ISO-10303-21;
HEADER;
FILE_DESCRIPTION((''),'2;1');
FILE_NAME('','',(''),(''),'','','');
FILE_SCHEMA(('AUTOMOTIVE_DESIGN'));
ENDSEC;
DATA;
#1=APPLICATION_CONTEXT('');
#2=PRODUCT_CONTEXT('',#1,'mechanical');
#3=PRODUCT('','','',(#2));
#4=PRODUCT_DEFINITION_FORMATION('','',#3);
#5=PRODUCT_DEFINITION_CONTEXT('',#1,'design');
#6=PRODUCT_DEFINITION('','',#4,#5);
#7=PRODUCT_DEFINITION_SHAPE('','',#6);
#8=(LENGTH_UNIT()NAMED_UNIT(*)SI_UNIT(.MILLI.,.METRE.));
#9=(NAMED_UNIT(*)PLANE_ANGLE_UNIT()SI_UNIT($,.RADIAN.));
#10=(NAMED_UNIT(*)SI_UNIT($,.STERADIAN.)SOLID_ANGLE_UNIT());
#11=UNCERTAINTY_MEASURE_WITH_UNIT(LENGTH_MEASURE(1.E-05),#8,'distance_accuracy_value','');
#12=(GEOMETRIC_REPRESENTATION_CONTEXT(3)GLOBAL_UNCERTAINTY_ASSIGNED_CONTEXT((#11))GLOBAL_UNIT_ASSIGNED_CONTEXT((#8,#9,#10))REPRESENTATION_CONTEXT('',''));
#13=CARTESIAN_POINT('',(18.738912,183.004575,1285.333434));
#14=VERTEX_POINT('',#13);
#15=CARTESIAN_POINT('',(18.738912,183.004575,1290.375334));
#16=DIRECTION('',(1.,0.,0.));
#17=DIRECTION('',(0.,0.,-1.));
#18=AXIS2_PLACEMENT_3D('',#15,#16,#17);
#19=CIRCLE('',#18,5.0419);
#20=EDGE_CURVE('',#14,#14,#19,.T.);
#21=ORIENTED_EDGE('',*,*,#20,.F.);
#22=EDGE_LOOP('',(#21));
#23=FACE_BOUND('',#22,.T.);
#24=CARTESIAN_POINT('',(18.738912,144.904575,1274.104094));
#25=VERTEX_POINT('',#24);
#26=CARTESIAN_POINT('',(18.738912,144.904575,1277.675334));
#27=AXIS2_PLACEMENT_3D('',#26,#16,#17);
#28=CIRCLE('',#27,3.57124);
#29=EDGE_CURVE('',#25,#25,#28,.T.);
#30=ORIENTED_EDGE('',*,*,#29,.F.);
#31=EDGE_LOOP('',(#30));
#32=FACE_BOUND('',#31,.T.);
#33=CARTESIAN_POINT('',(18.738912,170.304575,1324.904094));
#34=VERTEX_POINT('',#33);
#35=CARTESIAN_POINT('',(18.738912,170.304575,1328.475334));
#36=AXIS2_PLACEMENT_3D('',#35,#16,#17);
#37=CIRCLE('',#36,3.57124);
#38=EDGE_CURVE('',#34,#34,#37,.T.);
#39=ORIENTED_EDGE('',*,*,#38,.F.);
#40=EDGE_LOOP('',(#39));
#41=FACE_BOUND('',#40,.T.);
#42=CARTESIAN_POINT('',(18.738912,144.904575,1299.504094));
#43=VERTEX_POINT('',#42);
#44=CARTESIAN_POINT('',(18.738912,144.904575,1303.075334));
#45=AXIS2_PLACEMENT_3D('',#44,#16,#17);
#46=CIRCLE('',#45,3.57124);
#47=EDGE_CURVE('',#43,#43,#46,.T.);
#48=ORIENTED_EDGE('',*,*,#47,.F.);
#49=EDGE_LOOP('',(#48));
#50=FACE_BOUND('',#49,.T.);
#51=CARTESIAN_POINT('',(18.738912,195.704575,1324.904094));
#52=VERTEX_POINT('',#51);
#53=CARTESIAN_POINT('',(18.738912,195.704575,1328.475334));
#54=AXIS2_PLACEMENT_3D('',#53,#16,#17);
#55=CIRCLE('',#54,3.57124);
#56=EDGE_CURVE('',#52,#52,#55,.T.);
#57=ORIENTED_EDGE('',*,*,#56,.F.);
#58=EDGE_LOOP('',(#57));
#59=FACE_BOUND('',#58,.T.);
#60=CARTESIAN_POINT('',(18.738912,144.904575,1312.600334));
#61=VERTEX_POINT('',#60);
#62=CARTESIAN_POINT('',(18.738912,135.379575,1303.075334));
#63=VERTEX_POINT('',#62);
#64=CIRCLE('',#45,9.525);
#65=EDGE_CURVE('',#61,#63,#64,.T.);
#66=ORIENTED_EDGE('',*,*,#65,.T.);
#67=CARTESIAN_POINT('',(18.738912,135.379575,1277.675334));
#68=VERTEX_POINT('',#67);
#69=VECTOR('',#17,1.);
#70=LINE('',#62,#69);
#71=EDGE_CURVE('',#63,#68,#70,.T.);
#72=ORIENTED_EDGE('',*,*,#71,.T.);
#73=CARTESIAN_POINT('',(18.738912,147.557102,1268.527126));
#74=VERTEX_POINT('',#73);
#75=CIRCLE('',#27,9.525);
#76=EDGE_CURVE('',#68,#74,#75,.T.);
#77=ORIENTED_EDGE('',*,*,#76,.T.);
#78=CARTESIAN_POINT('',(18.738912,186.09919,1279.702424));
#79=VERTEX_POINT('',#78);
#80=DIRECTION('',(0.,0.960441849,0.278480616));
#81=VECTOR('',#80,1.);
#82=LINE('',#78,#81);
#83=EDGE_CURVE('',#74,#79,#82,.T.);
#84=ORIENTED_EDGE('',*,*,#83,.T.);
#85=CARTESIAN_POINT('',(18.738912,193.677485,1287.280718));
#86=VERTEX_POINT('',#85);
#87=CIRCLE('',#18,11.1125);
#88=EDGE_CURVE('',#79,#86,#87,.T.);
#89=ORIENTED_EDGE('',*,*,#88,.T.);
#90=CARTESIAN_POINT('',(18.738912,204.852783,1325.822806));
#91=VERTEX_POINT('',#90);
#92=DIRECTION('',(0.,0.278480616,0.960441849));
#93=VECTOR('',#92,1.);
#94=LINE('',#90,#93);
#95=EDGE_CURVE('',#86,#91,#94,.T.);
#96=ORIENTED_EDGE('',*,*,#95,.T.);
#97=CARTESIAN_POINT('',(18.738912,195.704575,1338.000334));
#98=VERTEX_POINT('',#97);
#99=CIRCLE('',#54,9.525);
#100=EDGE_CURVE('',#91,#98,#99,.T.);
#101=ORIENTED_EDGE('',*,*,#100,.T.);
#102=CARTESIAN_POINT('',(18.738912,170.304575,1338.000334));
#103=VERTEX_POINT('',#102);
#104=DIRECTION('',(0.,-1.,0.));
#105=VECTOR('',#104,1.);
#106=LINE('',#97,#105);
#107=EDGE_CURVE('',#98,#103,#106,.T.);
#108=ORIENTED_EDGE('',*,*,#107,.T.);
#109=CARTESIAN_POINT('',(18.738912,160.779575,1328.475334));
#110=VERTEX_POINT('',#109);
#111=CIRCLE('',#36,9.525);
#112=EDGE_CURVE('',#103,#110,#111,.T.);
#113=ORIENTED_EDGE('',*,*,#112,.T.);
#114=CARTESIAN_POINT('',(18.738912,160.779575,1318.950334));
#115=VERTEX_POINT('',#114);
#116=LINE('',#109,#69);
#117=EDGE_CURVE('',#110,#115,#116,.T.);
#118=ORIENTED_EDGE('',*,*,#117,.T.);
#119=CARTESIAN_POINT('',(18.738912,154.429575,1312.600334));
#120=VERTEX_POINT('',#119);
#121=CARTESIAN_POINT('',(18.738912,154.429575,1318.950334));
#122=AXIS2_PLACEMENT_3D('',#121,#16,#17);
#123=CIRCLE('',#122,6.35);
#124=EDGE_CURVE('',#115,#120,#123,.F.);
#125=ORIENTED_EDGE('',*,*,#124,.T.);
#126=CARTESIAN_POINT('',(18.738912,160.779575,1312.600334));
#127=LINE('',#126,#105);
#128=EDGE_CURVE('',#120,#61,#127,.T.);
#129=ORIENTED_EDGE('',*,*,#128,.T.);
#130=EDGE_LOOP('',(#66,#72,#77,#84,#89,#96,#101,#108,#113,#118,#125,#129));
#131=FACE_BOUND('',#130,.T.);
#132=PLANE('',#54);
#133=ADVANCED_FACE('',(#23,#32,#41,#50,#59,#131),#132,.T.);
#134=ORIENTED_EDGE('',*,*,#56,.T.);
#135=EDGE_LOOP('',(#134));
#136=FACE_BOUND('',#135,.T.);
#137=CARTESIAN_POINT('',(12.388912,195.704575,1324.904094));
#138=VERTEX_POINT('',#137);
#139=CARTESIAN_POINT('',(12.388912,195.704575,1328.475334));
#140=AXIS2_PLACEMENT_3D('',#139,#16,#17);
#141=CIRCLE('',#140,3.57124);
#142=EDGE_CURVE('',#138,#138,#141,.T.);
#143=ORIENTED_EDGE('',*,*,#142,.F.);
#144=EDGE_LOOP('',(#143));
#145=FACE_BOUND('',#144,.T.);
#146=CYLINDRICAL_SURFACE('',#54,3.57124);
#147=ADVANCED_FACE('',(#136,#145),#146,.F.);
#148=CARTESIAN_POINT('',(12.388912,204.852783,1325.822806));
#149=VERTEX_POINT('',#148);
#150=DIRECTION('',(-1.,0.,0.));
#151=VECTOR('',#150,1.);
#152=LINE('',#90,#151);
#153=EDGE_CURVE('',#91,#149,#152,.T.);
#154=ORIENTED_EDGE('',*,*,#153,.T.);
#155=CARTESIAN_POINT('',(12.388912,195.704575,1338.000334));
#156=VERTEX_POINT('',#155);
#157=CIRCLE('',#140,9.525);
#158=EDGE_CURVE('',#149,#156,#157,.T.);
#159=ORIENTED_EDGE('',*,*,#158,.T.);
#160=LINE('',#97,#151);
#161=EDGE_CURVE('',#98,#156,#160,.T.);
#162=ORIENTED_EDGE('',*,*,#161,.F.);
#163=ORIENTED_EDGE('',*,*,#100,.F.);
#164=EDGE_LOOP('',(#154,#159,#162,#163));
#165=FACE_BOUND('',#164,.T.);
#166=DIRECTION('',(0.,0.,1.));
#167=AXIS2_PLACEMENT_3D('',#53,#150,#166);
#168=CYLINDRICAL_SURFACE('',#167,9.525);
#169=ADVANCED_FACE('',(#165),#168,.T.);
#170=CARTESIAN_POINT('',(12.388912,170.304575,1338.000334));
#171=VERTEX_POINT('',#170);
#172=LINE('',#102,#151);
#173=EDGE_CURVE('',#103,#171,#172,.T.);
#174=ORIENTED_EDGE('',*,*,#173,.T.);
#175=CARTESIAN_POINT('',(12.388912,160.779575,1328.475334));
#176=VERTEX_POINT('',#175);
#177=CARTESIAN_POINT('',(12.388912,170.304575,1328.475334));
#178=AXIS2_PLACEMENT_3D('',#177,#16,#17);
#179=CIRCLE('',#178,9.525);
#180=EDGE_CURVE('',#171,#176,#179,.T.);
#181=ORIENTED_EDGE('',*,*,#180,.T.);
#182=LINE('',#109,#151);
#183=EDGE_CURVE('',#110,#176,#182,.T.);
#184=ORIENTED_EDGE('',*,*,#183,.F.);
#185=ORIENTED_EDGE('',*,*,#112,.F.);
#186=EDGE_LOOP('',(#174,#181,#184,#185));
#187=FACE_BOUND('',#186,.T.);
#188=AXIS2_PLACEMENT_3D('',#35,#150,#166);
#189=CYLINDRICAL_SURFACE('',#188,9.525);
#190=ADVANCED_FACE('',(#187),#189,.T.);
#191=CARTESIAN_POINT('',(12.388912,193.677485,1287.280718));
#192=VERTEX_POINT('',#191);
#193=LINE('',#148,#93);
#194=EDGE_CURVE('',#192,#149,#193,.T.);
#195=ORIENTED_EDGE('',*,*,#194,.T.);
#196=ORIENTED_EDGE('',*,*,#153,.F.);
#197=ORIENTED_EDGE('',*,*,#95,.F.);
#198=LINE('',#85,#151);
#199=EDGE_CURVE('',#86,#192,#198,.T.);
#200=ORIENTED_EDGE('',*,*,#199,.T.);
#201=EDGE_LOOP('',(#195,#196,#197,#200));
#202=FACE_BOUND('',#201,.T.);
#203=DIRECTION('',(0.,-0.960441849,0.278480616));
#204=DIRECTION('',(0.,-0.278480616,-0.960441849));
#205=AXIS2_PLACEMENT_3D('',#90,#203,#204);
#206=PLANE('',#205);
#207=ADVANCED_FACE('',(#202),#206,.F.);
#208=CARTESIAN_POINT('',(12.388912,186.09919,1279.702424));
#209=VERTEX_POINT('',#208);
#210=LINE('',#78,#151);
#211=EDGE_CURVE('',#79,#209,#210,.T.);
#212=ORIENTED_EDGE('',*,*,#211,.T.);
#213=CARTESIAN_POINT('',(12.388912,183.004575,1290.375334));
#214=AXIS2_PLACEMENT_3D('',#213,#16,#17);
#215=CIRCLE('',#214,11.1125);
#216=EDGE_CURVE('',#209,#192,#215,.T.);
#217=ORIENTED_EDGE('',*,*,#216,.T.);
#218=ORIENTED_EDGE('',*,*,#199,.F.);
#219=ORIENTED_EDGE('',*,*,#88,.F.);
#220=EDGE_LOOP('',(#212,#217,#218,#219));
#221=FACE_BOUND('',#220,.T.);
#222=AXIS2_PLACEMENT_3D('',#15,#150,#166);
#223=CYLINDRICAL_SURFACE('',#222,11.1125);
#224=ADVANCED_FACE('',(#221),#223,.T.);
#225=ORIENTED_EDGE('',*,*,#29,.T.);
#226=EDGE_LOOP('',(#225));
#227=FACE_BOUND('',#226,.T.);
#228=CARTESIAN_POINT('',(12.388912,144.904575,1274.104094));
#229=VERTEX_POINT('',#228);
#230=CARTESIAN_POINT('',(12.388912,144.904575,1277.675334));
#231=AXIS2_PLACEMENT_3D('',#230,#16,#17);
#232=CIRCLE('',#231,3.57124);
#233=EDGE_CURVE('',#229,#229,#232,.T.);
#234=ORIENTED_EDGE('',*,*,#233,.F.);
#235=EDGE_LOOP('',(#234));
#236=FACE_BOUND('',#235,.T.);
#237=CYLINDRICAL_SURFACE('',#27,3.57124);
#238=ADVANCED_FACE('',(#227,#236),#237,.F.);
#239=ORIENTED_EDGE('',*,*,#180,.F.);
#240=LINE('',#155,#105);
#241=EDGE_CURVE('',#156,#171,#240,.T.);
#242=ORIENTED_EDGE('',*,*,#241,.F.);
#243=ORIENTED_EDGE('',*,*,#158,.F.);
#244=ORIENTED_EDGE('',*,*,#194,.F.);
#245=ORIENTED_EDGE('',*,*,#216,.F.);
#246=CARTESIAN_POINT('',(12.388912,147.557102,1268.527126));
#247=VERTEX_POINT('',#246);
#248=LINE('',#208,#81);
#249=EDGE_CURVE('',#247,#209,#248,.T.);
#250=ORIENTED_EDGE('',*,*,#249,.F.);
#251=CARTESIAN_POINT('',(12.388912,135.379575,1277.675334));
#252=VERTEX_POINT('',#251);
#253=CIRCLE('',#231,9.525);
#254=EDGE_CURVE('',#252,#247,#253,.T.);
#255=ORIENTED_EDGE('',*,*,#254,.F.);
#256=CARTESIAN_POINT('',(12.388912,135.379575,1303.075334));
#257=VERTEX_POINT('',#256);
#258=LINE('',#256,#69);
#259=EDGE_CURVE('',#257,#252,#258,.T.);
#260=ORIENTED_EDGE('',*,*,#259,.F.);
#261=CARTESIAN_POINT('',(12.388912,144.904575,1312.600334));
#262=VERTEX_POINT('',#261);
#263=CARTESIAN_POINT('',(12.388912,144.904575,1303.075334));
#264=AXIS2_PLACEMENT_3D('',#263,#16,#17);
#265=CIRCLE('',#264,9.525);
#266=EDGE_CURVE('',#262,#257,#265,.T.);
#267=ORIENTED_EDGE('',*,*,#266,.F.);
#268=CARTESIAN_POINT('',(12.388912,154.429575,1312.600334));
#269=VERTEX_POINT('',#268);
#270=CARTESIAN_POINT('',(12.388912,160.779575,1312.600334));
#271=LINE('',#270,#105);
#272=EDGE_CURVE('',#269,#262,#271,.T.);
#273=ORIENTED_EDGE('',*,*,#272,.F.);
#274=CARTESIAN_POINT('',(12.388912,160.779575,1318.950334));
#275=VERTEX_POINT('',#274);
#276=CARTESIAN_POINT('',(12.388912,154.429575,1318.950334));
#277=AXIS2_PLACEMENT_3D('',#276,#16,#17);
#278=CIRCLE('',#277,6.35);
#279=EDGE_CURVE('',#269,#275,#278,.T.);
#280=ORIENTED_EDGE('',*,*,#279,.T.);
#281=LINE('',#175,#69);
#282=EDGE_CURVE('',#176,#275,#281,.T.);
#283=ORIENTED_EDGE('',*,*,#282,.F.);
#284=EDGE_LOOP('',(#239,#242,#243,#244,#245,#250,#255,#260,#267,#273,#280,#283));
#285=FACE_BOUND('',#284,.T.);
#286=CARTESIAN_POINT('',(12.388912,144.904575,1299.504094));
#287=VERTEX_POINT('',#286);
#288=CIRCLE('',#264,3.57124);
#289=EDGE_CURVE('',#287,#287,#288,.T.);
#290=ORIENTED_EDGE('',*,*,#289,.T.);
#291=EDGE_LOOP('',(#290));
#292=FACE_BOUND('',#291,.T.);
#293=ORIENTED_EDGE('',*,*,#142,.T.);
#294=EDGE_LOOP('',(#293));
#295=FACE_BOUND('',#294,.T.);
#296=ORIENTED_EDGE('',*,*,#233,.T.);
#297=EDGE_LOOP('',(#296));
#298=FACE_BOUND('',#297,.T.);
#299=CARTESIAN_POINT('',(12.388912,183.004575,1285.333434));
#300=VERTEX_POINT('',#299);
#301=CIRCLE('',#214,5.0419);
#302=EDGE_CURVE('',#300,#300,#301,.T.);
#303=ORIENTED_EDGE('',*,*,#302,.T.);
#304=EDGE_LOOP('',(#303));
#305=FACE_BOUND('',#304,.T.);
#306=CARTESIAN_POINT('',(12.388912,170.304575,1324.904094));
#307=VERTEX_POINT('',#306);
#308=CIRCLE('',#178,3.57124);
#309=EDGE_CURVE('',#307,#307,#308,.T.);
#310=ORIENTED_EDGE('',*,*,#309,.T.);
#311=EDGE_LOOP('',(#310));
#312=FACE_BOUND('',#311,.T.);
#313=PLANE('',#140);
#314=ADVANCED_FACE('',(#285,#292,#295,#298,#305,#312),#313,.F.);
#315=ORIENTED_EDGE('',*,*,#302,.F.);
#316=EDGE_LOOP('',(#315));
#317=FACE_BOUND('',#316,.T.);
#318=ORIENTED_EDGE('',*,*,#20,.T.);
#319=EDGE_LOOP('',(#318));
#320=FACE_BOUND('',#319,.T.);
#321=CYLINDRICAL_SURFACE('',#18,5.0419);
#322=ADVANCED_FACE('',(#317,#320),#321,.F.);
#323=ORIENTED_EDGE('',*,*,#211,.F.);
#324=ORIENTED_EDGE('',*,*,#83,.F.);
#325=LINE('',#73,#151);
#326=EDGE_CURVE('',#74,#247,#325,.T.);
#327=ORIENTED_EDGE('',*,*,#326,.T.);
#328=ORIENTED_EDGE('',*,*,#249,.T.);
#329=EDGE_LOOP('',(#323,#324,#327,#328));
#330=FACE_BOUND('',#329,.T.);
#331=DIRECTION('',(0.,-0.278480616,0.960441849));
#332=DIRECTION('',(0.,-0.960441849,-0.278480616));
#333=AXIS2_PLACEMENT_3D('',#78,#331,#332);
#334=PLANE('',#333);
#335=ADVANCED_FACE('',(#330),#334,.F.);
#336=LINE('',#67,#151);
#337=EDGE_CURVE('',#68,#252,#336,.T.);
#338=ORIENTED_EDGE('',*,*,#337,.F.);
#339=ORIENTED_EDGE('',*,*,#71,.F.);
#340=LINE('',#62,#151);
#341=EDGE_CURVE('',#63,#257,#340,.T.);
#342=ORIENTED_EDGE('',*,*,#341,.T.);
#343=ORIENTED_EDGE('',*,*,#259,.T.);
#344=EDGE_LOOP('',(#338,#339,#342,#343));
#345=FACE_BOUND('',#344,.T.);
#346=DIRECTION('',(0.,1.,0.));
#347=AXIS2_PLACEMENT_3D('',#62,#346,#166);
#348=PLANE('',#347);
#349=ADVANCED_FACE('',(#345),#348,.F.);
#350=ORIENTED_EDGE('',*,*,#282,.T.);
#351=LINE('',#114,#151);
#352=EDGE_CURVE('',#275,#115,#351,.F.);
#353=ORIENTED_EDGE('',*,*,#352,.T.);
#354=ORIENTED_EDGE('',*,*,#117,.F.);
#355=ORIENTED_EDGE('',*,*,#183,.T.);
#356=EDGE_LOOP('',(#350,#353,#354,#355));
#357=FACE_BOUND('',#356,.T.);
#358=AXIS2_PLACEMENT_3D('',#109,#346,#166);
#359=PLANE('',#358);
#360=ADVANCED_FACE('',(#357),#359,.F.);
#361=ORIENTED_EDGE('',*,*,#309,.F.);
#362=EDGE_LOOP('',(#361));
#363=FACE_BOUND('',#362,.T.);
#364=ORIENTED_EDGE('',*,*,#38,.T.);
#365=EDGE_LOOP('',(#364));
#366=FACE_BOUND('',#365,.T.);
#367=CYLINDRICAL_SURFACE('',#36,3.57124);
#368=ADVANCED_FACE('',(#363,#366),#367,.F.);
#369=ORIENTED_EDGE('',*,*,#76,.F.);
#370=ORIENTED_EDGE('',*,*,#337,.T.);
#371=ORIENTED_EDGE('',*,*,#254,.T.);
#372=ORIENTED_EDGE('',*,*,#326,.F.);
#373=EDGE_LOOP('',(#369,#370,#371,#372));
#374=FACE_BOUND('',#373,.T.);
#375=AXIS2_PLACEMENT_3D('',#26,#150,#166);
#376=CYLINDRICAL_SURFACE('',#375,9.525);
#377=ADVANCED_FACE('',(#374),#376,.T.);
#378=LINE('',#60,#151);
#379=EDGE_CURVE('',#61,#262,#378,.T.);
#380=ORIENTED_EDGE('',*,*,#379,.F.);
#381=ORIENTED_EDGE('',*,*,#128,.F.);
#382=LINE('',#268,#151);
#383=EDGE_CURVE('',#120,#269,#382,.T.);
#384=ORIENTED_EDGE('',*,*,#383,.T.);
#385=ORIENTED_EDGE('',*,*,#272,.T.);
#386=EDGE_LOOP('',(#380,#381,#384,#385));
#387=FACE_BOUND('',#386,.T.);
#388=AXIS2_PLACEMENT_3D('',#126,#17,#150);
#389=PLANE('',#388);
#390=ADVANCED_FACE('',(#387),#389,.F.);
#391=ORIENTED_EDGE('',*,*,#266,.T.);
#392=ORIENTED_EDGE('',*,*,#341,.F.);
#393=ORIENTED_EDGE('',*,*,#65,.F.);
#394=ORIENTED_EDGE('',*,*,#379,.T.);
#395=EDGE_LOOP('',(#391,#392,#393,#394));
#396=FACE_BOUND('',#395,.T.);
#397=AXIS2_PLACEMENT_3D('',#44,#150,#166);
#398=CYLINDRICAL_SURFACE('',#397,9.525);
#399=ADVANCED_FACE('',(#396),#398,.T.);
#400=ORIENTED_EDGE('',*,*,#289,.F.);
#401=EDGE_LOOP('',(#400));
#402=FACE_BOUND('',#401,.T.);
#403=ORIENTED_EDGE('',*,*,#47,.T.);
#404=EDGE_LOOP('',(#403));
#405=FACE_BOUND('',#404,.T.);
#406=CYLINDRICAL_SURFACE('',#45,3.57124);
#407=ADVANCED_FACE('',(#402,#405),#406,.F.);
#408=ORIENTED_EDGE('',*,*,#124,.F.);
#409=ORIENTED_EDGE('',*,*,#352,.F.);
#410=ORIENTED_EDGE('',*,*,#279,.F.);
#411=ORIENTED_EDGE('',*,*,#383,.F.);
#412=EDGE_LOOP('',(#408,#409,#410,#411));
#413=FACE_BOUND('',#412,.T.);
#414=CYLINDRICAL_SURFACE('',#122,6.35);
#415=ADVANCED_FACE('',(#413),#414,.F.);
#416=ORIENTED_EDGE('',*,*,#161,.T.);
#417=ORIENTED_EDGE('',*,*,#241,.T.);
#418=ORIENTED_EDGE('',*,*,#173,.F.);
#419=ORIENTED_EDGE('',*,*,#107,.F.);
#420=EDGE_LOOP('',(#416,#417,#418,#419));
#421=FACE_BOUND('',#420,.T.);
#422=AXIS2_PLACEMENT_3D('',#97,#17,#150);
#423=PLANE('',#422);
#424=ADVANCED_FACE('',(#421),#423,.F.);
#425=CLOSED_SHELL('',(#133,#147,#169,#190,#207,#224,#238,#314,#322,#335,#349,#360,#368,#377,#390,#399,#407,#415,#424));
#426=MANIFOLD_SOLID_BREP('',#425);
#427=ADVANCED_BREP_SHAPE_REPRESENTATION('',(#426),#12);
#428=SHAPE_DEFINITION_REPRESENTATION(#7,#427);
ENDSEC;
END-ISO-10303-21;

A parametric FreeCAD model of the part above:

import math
import FreeCAD as App
import Part
import Sketcher
from FreeCAD import Vector
Q = App.Units.Quantity


def edges_at(feature, points):
    """Names of the edges that pass closest to the given points."""
    edges = feature.Shape.Edges
    near = lambda p: min(range(len(edges)), key=lambda i: edges[i].distToShape(Part.Vertex(*p))[0])
    return sorted({f"Edge{near(p) + 1}" for p in points})

doc = App.newDocument("Part")
body = doc.addObject("PartDesign::Body", "Body")

# Sketch on YZ plane
sketch1 = body.newObject("Sketcher::SketchObject", "Sketch")
sketch1.AttachmentSupport = (doc.getObject("YZ_Plane"), [""])
sketch1.MapMode = "FlatFace"
sketch1.AttachmentOffset = App.Placement(Vector(0, 0, 12.388912), App.Rotation())
sketch1.addGeometry([
    Part.LineSegment(Vector(195.704575, 1338.000334, 0), Vector(170.304575, 1338.000334, 0)),  # 0
    Part.ArcOfCircle(Part.Circle(Vector(170.304575, 1328.475334, 0), Vector(0, 0, 1), 9.525), math.radians(90), math.radians(180)),  # 1
    Part.LineSegment(Vector(160.779575, 1328.475334, 0), Vector(160.779575, 1312.600334, 0)),  # 2
    Part.LineSegment(Vector(160.779575, 1312.600334, 0), Vector(144.904575, 1312.600334, 0)),  # 3
    Part.ArcOfCircle(Part.Circle(Vector(144.904575, 1303.075334, 0), Vector(0, 0, 1), 9.525), math.radians(90), math.radians(180)),  # 4
    Part.LineSegment(Vector(135.379575, 1303.075334, 0), Vector(135.379575, 1277.675334, 0)),  # 5
    Part.ArcOfCircle(Part.Circle(Vector(144.904575, 1277.675334, 0), Vector(0, 0, 1), 9.525), math.radians(-180), math.radians(-73.830456)),  # 6
    Part.LineSegment(Vector(147.557102, 1268.527126, 0), Vector(186.09919, 1279.702424, 0)),  # 7
    Part.ArcOfCircle(Part.Circle(Vector(183.004575, 1290.375334, 0), Vector(0, 0, 1), 11.1125), math.radians(-73.830456), math.radians(-16.169544)),  # 8
    Part.LineSegment(Vector(193.677485, 1287.280718, 0), Vector(204.852783, 1325.822806, 0)),  # 9
    Part.ArcOfCircle(Part.Circle(Vector(195.704575, 1328.475334, 0), Vector(0, 0, 1), 9.525), math.radians(-16.169544), math.radians(90)),  # 10
], False)
sketch1.addConstraint([
    Sketcher.Constraint("Tangent", 0, 2, 1, 1),
    Sketcher.Constraint("Tangent", 1, 2, 2, 1),
    Sketcher.Constraint("Coincident", 2, 2, 3, 1),
    Sketcher.Constraint("Tangent", 3, 2, 4, 1),
    Sketcher.Constraint("Tangent", 4, 2, 5, 1),
    Sketcher.Constraint("Tangent", 5, 2, 6, 1),
    Sketcher.Constraint("Tangent", 6, 2, 7, 1),
    Sketcher.Constraint("Tangent", 7, 2, 8, 1),
    Sketcher.Constraint("Tangent", 8, 2, 9, 1),
    Sketcher.Constraint("Tangent", 9, 2, 10, 1),
    Sketcher.Constraint("Tangent", 10, 2, 0, 1),
    Sketcher.Constraint("Horizontal", 0),
    Sketcher.Constraint("Vertical", 2),
    Sketcher.Constraint("Horizontal", 3),
    Sketcher.Constraint("Vertical", 5),
    Sketcher.Constraint("Equal", 1, 4),
    Sketcher.Constraint("Equal", 4, 6),
    Sketcher.Constraint("Equal", 6, 10),
    Sketcher.Constraint("Equal", 3, 2),
    Sketcher.Constraint("Equal", 0, 5),
    Sketcher.Constraint("Equal", 7, 9),
    Sketcher.Constraint("DistanceX", 0, 2, 0, 1, Q("1 in")),
    Sketcher.Constraint("Radius", 1, Q("0.375 in")),
    Sketcher.Constraint("Radius", 8, Q("0.4375 in")),
    Sketcher.Constraint("DistanceX", 4, 3, 1, 3, Q("1 in")),
    Sketcher.Constraint("DistanceX", 6, 3, 8, 3, Q("1.5 in")),
    Sketcher.Constraint("DistanceX", -1, 1, 7, 2, 186.09919),
    Sketcher.Constraint("DistanceY", -1, 1, 8, 2, 1287.280718),
])
pad1 = body.newObject("PartDesign::Pad", "Pad")
pad1.Profile = sketch1
pad1.Length = Q("0.25 in")

# Sketch on YZ plane
sketch2 = body.newObject("Sketcher::SketchObject", "Sketch001")
sketch2.AttachmentSupport = (doc.getObject("YZ_Plane"), [""])
sketch2.MapMode = "FlatFace"
sketch2.AttachmentOffset = App.Placement(Vector(0, 0, 18.738912), App.Rotation())
sketch2.addGeometry(Part.Circle(Vector(183.004575, 1290.375334, 0), Vector(0, 0, 1), 5.0419), False)
sketch2.addConstraint([
    Sketcher.Constraint("Diameter", 0, Q("0.397 in")),
    Sketcher.Constraint("DistanceX", -1, 1, 0, 3, 183.004575),
    Sketcher.Constraint("DistanceY", -1, 1, 0, 3, 1290.375334),
])
doc.recompute()
hole = body.newObject("PartDesign::Hole", "Hole")
hole.Profile = sketch2
hole.ThreadType = "None"
hole.Diameter = Q("0.397 in")
hole.DepthType = "ThroughAll"

# Sketch on YZ plane
sketch3 = body.newObject("Sketcher::SketchObject", "Sketch002")
sketch3.AttachmentSupport = (doc.getObject("YZ_Plane"), [""])
sketch3.MapMode = "FlatFace"
sketch3.AttachmentOffset = App.Placement(Vector(0, 0, 18.738912), App.Rotation())
sketch3.addGeometry([
    Part.Circle(Vector(144.904575, 1303.075334, 0), Vector(0, 0, 1), 3.57124),
    Part.Circle(Vector(144.904575, 1277.675334, 0), Vector(0, 0, 1), 3.57124),
    Part.Circle(Vector(170.304575, 1328.475334, 0), Vector(0, 0, 1), 3.57124),
    Part.Circle(Vector(195.704575, 1328.475334, 0), Vector(0, 0, 1), 3.57124),
], False)
sketch3.addConstraint([
    Sketcher.Constraint("Equal", 0, 1),
    Sketcher.Constraint("Equal", 1, 2),
    Sketcher.Constraint("Equal", 2, 3),
    Sketcher.Constraint("Horizontal", 2, 3, 3, 3),
    Sketcher.Constraint("Vertical", 0, 3, 1, 3),
    Sketcher.Constraint("DistanceY", 1, 3, 0, 3, Q("1 in")),
    Sketcher.Constraint("DistanceX", 0, 3, 2, 3, Q("1 in")),
    Sketcher.Constraint("DistanceY", 0, 3, 2, 3, Q("1 in")),
    Sketcher.Constraint("DistanceX", 2, 3, 3, 3, Q("1 in")),
    Sketcher.Constraint("Diameter", 0, Q("0.2812 in")),
    Sketcher.Constraint("DistanceX", -1, 1, 0, 3, 144.904575),
    Sketcher.Constraint("DistanceY", -1, 1, 0, 3, 1303.075334),
])
doc.recompute()
hole2 = body.newObject("PartDesign::Hole", "Hole001")
hole2.Profile = sketch3
hole2.ThreadType = "None"
hole2.Diameter = Q("0.2812 in")
hole2.DepthType = "ThroughAll"
doc.recompute()

fillet = body.newObject("PartDesign::Fillet", "Fillet")
fillet.Base = (hole2, edges_at(hole2, [(15.564, 160.78, 1312.6)]))
fillet.Radius = Q("0.25 in")

doc.recompute()
